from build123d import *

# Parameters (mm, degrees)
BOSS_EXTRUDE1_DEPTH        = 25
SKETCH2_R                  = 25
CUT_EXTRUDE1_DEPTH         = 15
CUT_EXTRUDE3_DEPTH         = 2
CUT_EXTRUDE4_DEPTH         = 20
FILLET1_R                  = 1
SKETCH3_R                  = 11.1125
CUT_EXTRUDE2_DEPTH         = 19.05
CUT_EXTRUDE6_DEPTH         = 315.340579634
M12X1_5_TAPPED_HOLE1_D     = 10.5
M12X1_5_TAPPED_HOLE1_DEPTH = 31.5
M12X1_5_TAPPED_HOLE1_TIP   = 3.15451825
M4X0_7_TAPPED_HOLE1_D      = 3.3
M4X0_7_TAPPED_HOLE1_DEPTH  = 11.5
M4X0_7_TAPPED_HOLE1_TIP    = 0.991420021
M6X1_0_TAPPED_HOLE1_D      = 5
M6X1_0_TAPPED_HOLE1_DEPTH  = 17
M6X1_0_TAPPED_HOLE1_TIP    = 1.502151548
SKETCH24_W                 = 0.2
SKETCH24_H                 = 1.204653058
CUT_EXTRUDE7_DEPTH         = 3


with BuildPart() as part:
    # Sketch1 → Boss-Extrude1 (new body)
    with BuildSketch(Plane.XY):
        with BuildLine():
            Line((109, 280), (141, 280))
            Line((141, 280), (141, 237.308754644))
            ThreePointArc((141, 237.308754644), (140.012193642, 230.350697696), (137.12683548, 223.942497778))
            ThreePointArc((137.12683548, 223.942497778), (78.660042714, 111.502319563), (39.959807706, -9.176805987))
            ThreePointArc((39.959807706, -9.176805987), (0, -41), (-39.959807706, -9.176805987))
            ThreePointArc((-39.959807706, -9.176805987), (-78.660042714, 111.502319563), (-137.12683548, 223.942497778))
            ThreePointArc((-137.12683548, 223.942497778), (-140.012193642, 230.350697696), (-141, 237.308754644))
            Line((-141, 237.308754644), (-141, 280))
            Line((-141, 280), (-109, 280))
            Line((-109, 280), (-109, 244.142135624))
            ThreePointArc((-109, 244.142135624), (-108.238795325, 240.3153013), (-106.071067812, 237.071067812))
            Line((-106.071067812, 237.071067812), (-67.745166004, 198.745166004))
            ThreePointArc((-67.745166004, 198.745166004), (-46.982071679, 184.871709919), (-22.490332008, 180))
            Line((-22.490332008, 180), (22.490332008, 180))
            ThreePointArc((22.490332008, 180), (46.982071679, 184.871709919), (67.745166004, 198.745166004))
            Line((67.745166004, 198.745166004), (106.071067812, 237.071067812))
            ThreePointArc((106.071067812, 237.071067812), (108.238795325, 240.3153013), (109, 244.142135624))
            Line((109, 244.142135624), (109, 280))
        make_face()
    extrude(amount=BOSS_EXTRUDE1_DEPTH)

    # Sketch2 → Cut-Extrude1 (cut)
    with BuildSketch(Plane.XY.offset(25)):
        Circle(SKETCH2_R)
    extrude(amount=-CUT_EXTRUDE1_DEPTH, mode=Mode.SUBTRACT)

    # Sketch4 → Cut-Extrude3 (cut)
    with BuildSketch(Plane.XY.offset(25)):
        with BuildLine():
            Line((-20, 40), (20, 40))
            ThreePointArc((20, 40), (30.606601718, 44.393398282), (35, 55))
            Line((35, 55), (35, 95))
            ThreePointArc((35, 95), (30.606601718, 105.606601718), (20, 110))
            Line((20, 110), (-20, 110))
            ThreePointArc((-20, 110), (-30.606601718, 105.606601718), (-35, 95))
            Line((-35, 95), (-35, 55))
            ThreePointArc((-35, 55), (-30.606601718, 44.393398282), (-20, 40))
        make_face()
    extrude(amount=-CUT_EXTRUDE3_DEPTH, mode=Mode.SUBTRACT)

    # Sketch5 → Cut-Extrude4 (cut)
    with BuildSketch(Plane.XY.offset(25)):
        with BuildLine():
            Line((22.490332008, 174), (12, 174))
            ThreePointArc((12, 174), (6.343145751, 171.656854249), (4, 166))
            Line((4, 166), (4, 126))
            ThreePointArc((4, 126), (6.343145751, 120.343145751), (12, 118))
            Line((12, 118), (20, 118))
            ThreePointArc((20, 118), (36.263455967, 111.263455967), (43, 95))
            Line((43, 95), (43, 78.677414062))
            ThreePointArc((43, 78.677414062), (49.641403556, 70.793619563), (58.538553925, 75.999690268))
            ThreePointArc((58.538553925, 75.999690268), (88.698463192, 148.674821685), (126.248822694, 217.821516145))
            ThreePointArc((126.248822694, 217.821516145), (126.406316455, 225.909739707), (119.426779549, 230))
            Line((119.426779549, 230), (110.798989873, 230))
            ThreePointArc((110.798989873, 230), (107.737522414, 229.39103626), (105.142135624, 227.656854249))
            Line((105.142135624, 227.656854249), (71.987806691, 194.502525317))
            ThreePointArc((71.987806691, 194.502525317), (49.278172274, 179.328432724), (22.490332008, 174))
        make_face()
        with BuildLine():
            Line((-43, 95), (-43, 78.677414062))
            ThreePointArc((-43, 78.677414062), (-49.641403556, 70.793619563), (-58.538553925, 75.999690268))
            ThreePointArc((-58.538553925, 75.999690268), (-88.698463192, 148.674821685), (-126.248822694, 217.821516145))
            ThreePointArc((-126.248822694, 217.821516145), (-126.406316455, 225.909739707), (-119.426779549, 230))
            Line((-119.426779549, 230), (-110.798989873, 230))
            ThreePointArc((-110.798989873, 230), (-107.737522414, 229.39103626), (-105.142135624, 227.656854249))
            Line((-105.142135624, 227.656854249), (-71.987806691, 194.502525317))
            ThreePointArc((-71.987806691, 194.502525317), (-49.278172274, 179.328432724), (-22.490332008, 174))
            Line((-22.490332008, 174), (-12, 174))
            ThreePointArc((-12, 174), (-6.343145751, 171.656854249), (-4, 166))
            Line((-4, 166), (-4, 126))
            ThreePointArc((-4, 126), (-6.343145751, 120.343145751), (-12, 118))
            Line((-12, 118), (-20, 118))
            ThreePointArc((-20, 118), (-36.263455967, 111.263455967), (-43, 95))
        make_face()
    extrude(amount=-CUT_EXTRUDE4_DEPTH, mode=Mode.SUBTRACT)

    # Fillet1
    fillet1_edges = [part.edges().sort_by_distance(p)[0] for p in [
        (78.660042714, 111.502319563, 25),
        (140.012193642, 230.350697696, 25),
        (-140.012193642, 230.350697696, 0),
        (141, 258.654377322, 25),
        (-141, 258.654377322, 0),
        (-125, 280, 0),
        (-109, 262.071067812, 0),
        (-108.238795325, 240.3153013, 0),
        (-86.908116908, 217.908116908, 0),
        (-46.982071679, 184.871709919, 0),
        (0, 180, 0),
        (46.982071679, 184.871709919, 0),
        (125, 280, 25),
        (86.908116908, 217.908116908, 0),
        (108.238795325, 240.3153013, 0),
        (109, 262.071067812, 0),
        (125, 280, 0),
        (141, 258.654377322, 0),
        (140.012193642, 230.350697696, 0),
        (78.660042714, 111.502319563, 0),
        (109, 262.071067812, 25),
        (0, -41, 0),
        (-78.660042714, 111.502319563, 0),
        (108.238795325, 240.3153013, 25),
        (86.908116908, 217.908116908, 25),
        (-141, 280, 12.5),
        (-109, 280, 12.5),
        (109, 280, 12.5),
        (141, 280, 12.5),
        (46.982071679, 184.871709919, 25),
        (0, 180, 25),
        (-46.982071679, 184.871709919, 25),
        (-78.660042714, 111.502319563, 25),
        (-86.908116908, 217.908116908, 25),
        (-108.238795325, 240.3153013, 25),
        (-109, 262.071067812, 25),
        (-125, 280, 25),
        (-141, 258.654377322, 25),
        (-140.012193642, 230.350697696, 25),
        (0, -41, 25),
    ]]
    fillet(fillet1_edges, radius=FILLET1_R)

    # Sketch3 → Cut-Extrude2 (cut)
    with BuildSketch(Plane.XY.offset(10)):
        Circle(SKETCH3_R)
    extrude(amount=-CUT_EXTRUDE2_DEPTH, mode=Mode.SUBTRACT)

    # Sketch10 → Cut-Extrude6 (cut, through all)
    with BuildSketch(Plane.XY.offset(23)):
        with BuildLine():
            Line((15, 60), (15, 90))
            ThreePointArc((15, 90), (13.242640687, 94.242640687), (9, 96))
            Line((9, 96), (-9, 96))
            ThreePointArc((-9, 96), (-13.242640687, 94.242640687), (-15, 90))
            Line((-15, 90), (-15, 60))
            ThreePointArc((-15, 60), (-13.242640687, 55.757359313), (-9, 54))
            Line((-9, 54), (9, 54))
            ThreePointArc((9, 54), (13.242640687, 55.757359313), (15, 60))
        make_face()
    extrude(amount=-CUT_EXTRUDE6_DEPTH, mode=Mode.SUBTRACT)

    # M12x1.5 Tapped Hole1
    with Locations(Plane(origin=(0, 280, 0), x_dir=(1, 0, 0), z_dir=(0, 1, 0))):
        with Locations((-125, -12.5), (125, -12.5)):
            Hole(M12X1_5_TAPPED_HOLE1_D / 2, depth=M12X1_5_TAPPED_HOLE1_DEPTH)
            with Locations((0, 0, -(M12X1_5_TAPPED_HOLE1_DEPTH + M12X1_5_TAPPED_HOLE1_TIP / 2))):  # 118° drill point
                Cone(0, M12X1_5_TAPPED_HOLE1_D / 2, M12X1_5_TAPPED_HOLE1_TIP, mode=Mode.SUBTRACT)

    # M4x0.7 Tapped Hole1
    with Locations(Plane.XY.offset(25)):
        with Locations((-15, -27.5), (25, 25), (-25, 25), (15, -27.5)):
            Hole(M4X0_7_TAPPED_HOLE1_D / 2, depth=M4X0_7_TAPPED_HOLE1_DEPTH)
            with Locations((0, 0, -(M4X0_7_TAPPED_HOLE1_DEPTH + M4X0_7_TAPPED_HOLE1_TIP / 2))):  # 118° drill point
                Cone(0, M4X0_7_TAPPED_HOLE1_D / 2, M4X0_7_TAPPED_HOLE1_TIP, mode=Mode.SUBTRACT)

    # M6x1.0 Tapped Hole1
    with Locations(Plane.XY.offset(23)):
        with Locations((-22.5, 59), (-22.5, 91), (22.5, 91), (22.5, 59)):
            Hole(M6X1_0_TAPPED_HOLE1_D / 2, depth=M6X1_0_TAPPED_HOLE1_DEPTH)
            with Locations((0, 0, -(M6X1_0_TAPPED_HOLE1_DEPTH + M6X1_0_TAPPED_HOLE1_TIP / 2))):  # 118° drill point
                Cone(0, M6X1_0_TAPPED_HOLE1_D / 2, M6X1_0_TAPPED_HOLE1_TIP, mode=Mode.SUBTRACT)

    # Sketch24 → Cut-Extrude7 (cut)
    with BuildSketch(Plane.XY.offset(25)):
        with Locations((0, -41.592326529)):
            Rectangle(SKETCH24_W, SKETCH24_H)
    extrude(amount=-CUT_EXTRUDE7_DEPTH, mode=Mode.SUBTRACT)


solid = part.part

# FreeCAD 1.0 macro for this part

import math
import FreeCAD as App
import Part
import Sketcher

V = App.Vector


def edges_at(feature, points):
    """Names of the edges that pass closest to the given points."""
    edges = feature.Shape.Edges
    near = lambda p: min(range(len(edges)), key=lambda i: edges[i].distToShape(Part.Vertex(*p))[0])
    return sorted({f"Edge{near(p) + 1}" for p in points})


def add_polygon(sketch, points):
    """Adds a closed chain of lines whose ends are joined by coincident constraints."""
    first, n = sketch.GeometryCount, len(points)
    for a, b in zip(points, points[1:] + points[:1]):
        sketch.addGeometry(Part.LineSegment(App.Vector(*a, 0), App.Vector(*b, 0)), False)
    for i in range(n):
        sketch.addConstraint(Sketcher.Constraint("Coincident", first + i, 2, first + (i + 1) % n, 1))

doc = App.newDocument("Part")
params = doc.addObject("Spreadsheet::Sheet", "Params")
for row, (alias, value) in enumerate([
    ("sketch1_radius", "10 mm"),
    ("sketch1_radius2", "64 mm"),
    ("sketch1_radius3", "25 mm"),
    ("sketch1_radius4", "750 mm"),
    ("sketch1_radius5", "41 mm"),
    ("pad1_length", "25 mm"),
    ("sketch2_diameter", "50 mm"),
    ("pocket1_length", "15 mm"),
    ("sketch3_radius", "15 mm"),
    ("sketch3_width", "40 mm"),
    ("pocket2_length", "2 mm"),
    ("sketch4_radius", "8 mm"),
    ("sketch4_radius2", "23 mm"),
    ("sketch4_radius3", "756 mm"),
    ("sketch4_radius4", "70 mm"),
    ("sketch4_width", "8 mm"),
    ("pocket3_length", "20 mm"),
    ("fillet_radius", "1 mm"),
    ("pocket4_length", "19.05 mm"),
    ("sketch6_radius", "6 mm"),
    ("sketch6_width", "18 mm"),
    ("sketch6_height", "30 mm"),
    ("sketch7_diameter", "10.5 mm"),
    ("hole_diameter", "10.5 mm"),
    ("hole_depth", "31.5 mm"),
    ("sketch8_diameter", "3.3 mm"),
    ("hole2_diameter", "3.3 mm"),
    ("hole2_depth", "11.5 mm"),
    ("sketch9_diameter", "5 mm"),
    ("hole3_diameter", "5 mm"),
    ("hole3_depth", "17 mm"),
    ("sketch10_width", "0.2 mm"),
    ("pocket6_length", "3 mm"),
], start=1):
    params.set(f"A{row}", alias)
    params.set(f"B{row}", "=" + value)
    params.setAlias(f"B{row}", alias)

body = doc.addObject("PartDesign::Body", "Body")

# Sketch on XY plane
sketch1 = doc.addObject("Sketcher::SketchObject", "Sketch")
body.addObject(sketch1)
sketch1.AttachmentSupport = (doc.XY_Plane, [""])
sketch1.MapMode = "FlatFace"
sketch1.addGeometry([
    Part.LineSegment(V(141, 280, 0), V(109, 280, 0)),  # 0
    Part.LineSegment(V(109, 280, 0), V(109, 244.142136, 0)),  # 1
    Part.ArcOfCircle(Part.Circle(V(99, 244.142136, 0), V(0, 0, 1), 10), math.radians(-45), math.radians(0)),  # 2
    Part.LineSegment(V(106.071068, 237.071068, 0), V(67.745166, 198.745166, 0)),  # 3
    Part.ArcOfCircle(Part.Circle(V(22.490332, 244, 0), V(0, 0, 1), 64), math.radians(-90), math.radians(-45)),  # 4
    Part.LineSegment(V(22.490332, 180, 0), V(-22.490332, 180, 0)),  # 5
    Part.ArcOfCircle(Part.Circle(V(-22.490332, 244, 0), V(0, 0, 1), 64), math.radians(-135), math.radians(-90)),  # 6
    Part.LineSegment(V(-67.745166, 198.745166, 0), V(-106.071068, 237.071068, 0)),  # 7
    Part.ArcOfCircle(Part.Circle(V(-99, 244.142136, 0), V(0, 0, 1), 10), math.radians(180), math.radians(225)),  # 8
    Part.LineSegment(V(-109, 244.142136, 0), V(-109, 280, 0)),  # 9
    Part.LineSegment(V(-109, 280, 0), V(-141, 280, 0)),  # 10
    Part.LineSegment(V(-141, 280, 0), V(-141, 237.308755, 0)),  # 11
    Part.ArcOfCircle(Part.Circle(V(-116, 237.308755, 0), V(0, 0, 1), 25), math.radians(-180), math.radians(-147.679803)),  # 12
    Part.ArcOfCircle(Part.Circle(V(-770.9319, -177.045208, 0), V(0, 0, 1), 750), math.radians(12.933766), math.radians(32.320197)),  # 13
    Part.ArcOfCircle(Part.Circle(V(0, 0, 0), V(0, 0, 1), 41), math.radians(-167.066234), math.radians(-12.933766)),  # 14
    Part.ArcOfCircle(Part.Circle(V(770.9319, -177.045208, 0), V(0, 0, 1), 750), math.radians(147.679803), math.radians(167.066234)),  # 15
    Part.ArcOfCircle(Part.Circle(V(116, 237.308755, 0), V(0, 0, 1), 25), math.radians(-32.320197), math.radians(0)),  # 16
    Part.LineSegment(V(141, 237.308755, 0), V(141, 280, 0)),  # 17
], False)
sketch1.addConstraint([
    Sketcher.Constraint("Coincident", 0, 2, 1, 1),
    Sketcher.Constraint("Tangent", 1, 2, 2, 2),
    Sketcher.Constraint("Tangent", 2, 1, 3, 1),
    Sketcher.Constraint("Tangent", 3, 2, 4, 2),
    Sketcher.Constraint("Tangent", 4, 1, 5, 1),
    Sketcher.Constraint("Tangent", 5, 2, 6, 2),
    Sketcher.Constraint("Tangent", 6, 1, 7, 1),
    Sketcher.Constraint("Tangent", 7, 2, 8, 2),
    Sketcher.Constraint("Tangent", 8, 1, 9, 1),
    Sketcher.Constraint("Coincident", 9, 2, 10, 1),
    Sketcher.Constraint("Coincident", 10, 2, 11, 1),
    Sketcher.Constraint("Tangent", 11, 2, 12, 1),
    Sketcher.Constraint("Tangent", 12, 2, 13, 2),
    Sketcher.Constraint("Tangent", 13, 1, 14, 1),
    Sketcher.Constraint("Tangent", 14, 2, 15, 2),
    Sketcher.Constraint("Tangent", 15, 1, 16, 1),
    Sketcher.Constraint("Tangent", 16, 2, 17, 1),
    Sketcher.Constraint("Coincident", 17, 2, 0, 1),
    Sketcher.Constraint("Horizontal", 0),
    Sketcher.Constraint("Vertical", 1),
    Sketcher.Constraint("Horizontal", 5),
    Sketcher.Constraint("Vertical", 9),
    Sketcher.Constraint("Horizontal", 10),
    Sketcher.Constraint("Vertical", 11),
    Sketcher.Constraint("Vertical", 17),
    Sketcher.Constraint("Coincident", 14, 3, -1, 1),
    Sketcher.Constraint("Equal", 4, 6),
    Sketcher.Constraint("Equal", 2, 8),
    Sketcher.Constraint("Equal", 13, 15),
    Sketcher.Constraint("Equal", 12, 16),
    Sketcher.Constraint("Symmetric", 2, 3, 8, 3, -2),
    Sketcher.Constraint("Symmetric", 12, 3, 16, 3, -2),
    Sketcher.Constraint("Perpendicular", 3, 7),
    Sketcher.Constraint("Horizontal", 3, 2, 6, 1),
    Sketcher.Constraint("Horizontal", 0, 2, 9, 2),
    Sketcher.Constraint("Radius", 2, 10.0),
    Sketcher.Constraint("Radius", 4, 64.0),
    Sketcher.Constraint("Radius", 12, 25.0),
    Sketcher.Constraint("Radius", 13, 750.0),
    Sketcher.Constraint("Radius", 14, 41.0),
    Sketcher.Constraint("DistanceX", 0, 2, 0, 1, 32.0),
    Sketcher.Constraint("DistanceX", -1, 1, 2, 3, 99.0),
    Sketcher.Constraint("DistanceY", -1, 1, 4, 3, 244.0),
    Sketcher.Constraint("DistanceY", -1, 1, 0, 2, 280.0),
    Sketcher.Constraint("DistanceX", 13, 3, -1, 1, 770.9319),
    Sketcher.Constraint("DistanceX", 3, 2, 2, 1, 38.325902),
])
sketch1.setExpression("Constraints[35]", "Params.sketch1_radius")
sketch1.setExpression("Constraints[36]", "Params.sketch1_radius2")
sketch1.setExpression("Constraints[37]", "Params.sketch1_radius3")
sketch1.setExpression("Constraints[38]", "Params.sketch1_radius4")
sketch1.setExpression("Constraints[39]", "Params.sketch1_radius5")
pad1 = doc.addObject("PartDesign::Pad", "Pad")
body.addObject(pad1)
pad1.Profile = sketch1
pad1.setExpression("Length", "Params.pad1_length")

# Sketch on XY plane
sketch2 = doc.addObject("Sketcher::SketchObject", "Sketch001")
body.addObject(sketch2)
sketch2.AttachmentSupport = (doc.XY_Plane, [""])
sketch2.MapMode = "FlatFace"
sketch2.AttachmentOffset = App.Placement(V(0, 0, 25), App.Rotation())
sketch2.addGeometry(Part.Circle(V(0, 0, 0), V(0, 0, 1), 25), False)
sketch2.addConstraint([
    Sketcher.Constraint("Coincident", 0, 3, -1, 1),
    Sketcher.Constraint("Diameter", 0, 50.0),
])
sketch2.setExpression("Constraints[1]", "Params.sketch2_diameter")
pocket1 = doc.addObject("PartDesign::Pocket", "Pocket")
body.addObject(pocket1)
pocket1.Profile = sketch2
pocket1.setExpression("Length", "Params.pocket1_length")

# Sketch on XY plane
sketch3 = doc.addObject("Sketcher::SketchObject", "Sketch002")
body.addObject(sketch3)
sketch3.AttachmentSupport = (doc.XY_Plane, [""])
sketch3.MapMode = "FlatFace"
sketch3.AttachmentOffset = App.Placement(V(0, 0, 25), App.Rotation())
sketch3.addGeometry([
    Part.LineSegment(V(-20, 40, 0), V(20, 40, 0)),  # 0
    Part.ArcOfCircle(Part.Circle(V(20, 55, 0), V(0, 0, 1), 15), math.radians(-90), math.radians(0)),  # 1
    Part.LineSegment(V(35, 55, 0), V(35, 95, 0)),  # 2
    Part.ArcOfCircle(Part.Circle(V(20, 95, 0), V(0, 0, 1), 15), math.radians(0), math.radians(90)),  # 3
    Part.LineSegment(V(20, 110, 0), V(-20, 110, 0)),  # 4
    Part.ArcOfCircle(Part.Circle(V(-20, 95, 0), V(0, 0, 1), 15), math.radians(90), math.radians(180)),  # 5
    Part.LineSegment(V(-35, 95, 0), V(-35, 55, 0)),  # 6
    Part.ArcOfCircle(Part.Circle(V(-20, 55, 0), V(0, 0, 1), 15), math.radians(180), math.radians(270)),  # 7
], False)
sketch3.addConstraint([
    Sketcher.Constraint("Tangent", 0, 2, 1, 1),
    Sketcher.Constraint("Tangent", 1, 2, 2, 1),
    Sketcher.Constraint("Tangent", 2, 2, 3, 1),
    Sketcher.Constraint("Tangent", 3, 2, 4, 1),
    Sketcher.Constraint("Tangent", 4, 2, 5, 1),
    Sketcher.Constraint("Tangent", 5, 2, 6, 1),
    Sketcher.Constraint("Tangent", 6, 2, 7, 1),
    Sketcher.Constraint("Tangent", 7, 2, 0, 1),
    Sketcher.Constraint("Horizontal", 0),
    Sketcher.Constraint("Vertical", 2),
    Sketcher.Constraint("Horizontal", 4),
    Sketcher.Constraint("Vertical", 6),
    Sketcher.Constraint("Equal", 1, 3),
    Sketcher.Constraint("Equal", 3, 5),
    Sketcher.Constraint("Equal", 5, 7),
    Sketcher.Constraint("Equal", 4, 2),
    Sketcher.Constraint("Radius", 1, 15.0),
    Sketcher.Constraint("DistanceX", 0, 1, 0, 2, 40.0),
    Sketcher.Constraint("DistanceX", -1, 1, 1, 3, 20.0),
    Sketcher.Constraint("DistanceY", -1, 1, 1, 3, 55.0),
])
sketch3.setExpression("Constraints[16]", "Params.sketch3_radius")
sketch3.setExpression("Constraints[17]", "Params.sketch3_width")
pocket2 = doc.addObject("PartDesign::Pocket", "Pocket001")
body.addObject(pocket2)
pocket2.Profile = sketch3
pocket2.setExpression("Length", "Params.pocket2_length")

# Sketch on XY plane
sketch4 = doc.addObject("Sketcher::SketchObject", "Sketch003")
body.addObject(sketch4)
sketch4.AttachmentSupport = (doc.XY_Plane, [""])
sketch4.MapMode = "FlatFace"
sketch4.AttachmentOffset = App.Placement(V(0, 0, 25), App.Rotation())
sketch4.addGeometry([
    Part.LineSegment(V(22.490332, 174, 0), V(12, 174, 0)),  # 0
    Part.ArcOfCircle(Part.Circle(V(12, 166, 0), V(0, 0, 1), 8), math.radians(90), math.radians(180)),  # 1
    Part.LineSegment(V(4, 166, 0), V(4, 126, 0)),  # 2
    Part.ArcOfCircle(Part.Circle(V(12, 126, 0), V(0, 0, 1), 8), math.radians(-180), math.radians(-90)),  # 3
    Part.LineSegment(V(12, 118, 0), V(20, 118, 0)),  # 4
    Part.ArcOfCircle(Part.Circle(V(20, 95, 0), V(0, 0, 1), 23), math.radians(0), math.radians(90)),  # 5
    Part.LineSegment(V(43, 95, 0), V(43, 78.677414, 0)),  # 6
    Part.ArcOfCircle(Part.Circle(V(51, 78.677414, 0), V(0, 0, 1), 8), math.radians(180), math.radians(340.444763)),  # 7
    Part.ArcOfCircle(Part.Circle(V(770.9319, -177.045208, 0), V(0, 0, 1), 756), math.radians(148.512638), math.radians(160.444763)),  # 8
    Part.ArcOfCircle(Part.Circle(V(119.42678, 222, 0), V(0, 0, 1), 8), math.radians(-31.487362), math.radians(90)),  # 9
    Part.LineSegment(V(119.42678, 230, 0), V(110.79899, 230, 0)),  # 10
    Part.ArcOfCircle(Part.Circle(V(110.79899, 222, 0), V(0, 0, 1), 8), math.radians(90), math.radians(135)),  # 11
    Part.LineSegment(V(105.142136, 227.656854, 0), V(71.987807, 194.502525, 0)),  # 12
    Part.ArcOfCircle(Part.Circle(V(22.490332, 244, 0), V(0, 0, 1), 70), math.radians(-90), math.radians(-45)),  # 13
    Part.LineSegment(V(-43, 78.677414, 0), V(-43, 95, 0)),  # 14
    Part.ArcOfCircle(Part.Circle(V(-20, 95, 0), V(0, 0, 1), 23), math.radians(90), math.radians(180)),  # 15
    Part.LineSegment(V(-20, 118, 0), V(-12, 118, 0)),  # 16
    Part.ArcOfCircle(Part.Circle(V(-12, 126, 0), V(0, 0, 1), 8), math.radians(-90), math.radians(0)),  # 17
    Part.LineSegment(V(-4, 126, 0), V(-4, 166, 0)),  # 18
    Part.ArcOfCircle(Part.Circle(V(-12, 166, 0), V(0, 0, 1), 8), math.radians(0), math.radians(90)),  # 19
    Part.LineSegment(V(-12, 174, 0), V(-22.490332, 174, 0)),  # 20
    Part.ArcOfCircle(Part.Circle(V(-22.490332, 244, 0), V(0, 0, 1), 70), math.radians(-135), math.radians(-90)),  # 21
    Part.LineSegment(V(-71.987807, 194.502525, 0), V(-105.142136, 227.656854, 0)),  # 22
    Part.ArcOfCircle(Part.Circle(V(-110.79899, 222, 0), V(0, 0, 1), 8), math.radians(45), math.radians(90)),  # 23
    Part.LineSegment(V(-110.79899, 230, 0), V(-119.42678, 230, 0)),  # 24
    Part.ArcOfCircle(Part.Circle(V(-119.42678, 222, 0), V(0, 0, 1), 8), math.radians(90), math.radians(211.487362)),  # 25
    Part.ArcOfCircle(Part.Circle(V(-770.9319, -177.045208, 0), V(0, 0, 1), 756), math.radians(19.555237), math.radians(31.487362)),  # 26
    Part.ArcOfCircle(Part.Circle(V(-51, 78.677414, 0), V(0, 0, 1), 8), math.radians(-160.444763), math.radians(0)),  # 27
], False)
sketch4.addConstraint([
    Sketcher.Constraint("Tangent", 0, 2, 1, 1),
    Sketcher.Constraint("Tangent", 1, 2, 2, 1),
    Sketcher.Constraint("Tangent", 2, 2, 3, 1),
    Sketcher.Constraint("Tangent", 3, 2, 4, 1),
    Sketcher.Constraint("Tangent", 4, 2, 5, 2),
    Sketcher.Constraint("Tangent", 5, 1, 6, 1),
    Sketcher.Constraint("Tangent", 6, 2, 7, 1),
    Sketcher.Constraint("Tangent", 7, 2, 8, 2),
    Sketcher.Constraint("Tangent", 8, 1, 9, 1),
    Sketcher.Constraint("Tangent", 9, 2, 10, 1),
    Sketcher.Constraint("Tangent", 10, 2, 11, 1),
    Sketcher.Constraint("Tangent", 11, 2, 12, 1),
    Sketcher.Constraint("Tangent", 12, 2, 13, 2),
    Sketcher.Constraint("Tangent", 13, 1, 0, 1),
    Sketcher.Constraint("Tangent", 14, 2, 15, 2),
    Sketcher.Constraint("Tangent", 15, 1, 16, 1),
    Sketcher.Constraint("Tangent", 16, 2, 17, 1),
    Sketcher.Constraint("Tangent", 17, 2, 18, 1),
    Sketcher.Constraint("Tangent", 18, 2, 19, 1),
    Sketcher.Constraint("Tangent", 19, 2, 20, 1),
    Sketcher.Constraint("Tangent", 20, 2, 21, 2),
    Sketcher.Constraint("Tangent", 21, 1, 22, 1),
    Sketcher.Constraint("Tangent", 22, 2, 23, 1),
    Sketcher.Constraint("Tangent", 23, 2, 24, 1),
    Sketcher.Constraint("Tangent", 24, 2, 25, 1),
    Sketcher.Constraint("Tangent", 25, 2, 26, 2),
    Sketcher.Constraint("Tangent", 26, 1, 27, 1),
    Sketcher.Constraint("Tangent", 27, 2, 14, 1),
    Sketcher.Constraint("Horizontal", 0),
    Sketcher.Constraint("Vertical", 2),
    Sketcher.Constraint("Horizontal", 4),
    Sketcher.Constraint("Vertical", 6),
    Sketcher.Constraint("Horizontal", 10),
    Sketcher.Constraint("Vertical", 14),
    Sketcher.Constraint("Horizontal", 16),
    Sketcher.Constraint("Vertical", 18),
    Sketcher.Constraint("Horizontal", 20),
    Sketcher.Constraint("Horizontal", 24),
    Sketcher.Constraint("Equal", 1, 3),
    Sketcher.Constraint("Equal", 3, 7),
    Sketcher.Constraint("Equal", 7, 9),
    Sketcher.Constraint("Equal", 9, 11),
    Sketcher.Constraint("Equal", 5, 15),
    Sketcher.Constraint("Equal", 11, 17),
    Sketcher.Constraint("Equal", 17, 19),
    Sketcher.Constraint("Equal", 13, 21),
    Sketcher.Constraint("Equal", 19, 23),
    Sketcher.Constraint("Equal", 23, 25),
    Sketcher.Constraint("Equal", 8, 26),
    Sketcher.Constraint("Equal", 25, 27),
    Sketcher.Constraint("Symmetric", 5, 3, 15, 3, -2),
    Sketcher.Constraint("Symmetric", 1, 3, 19, 3, -2),
    Sketcher.Constraint("Symmetric", 11, 3, 23, 3, -2),
    Sketcher.Constraint("Symmetric", 8, 3, 26, 3, -2),
    Sketcher.Constraint("Perpendicular", 12, 22),
    Sketcher.Constraint("Horizontal", 12, 2, 21, 1),
    Sketcher.Constraint("Radius", 1, 8.0),
    Sketcher.Constraint("Radius", 5, 23.0),
    Sketcher.Constraint("Radius", 8, 756.0),
    Sketcher.Constraint("Radius", 13, 70.0),
    Sketcher.Constraint("DistanceX", 4, 1, 4, 2, 8.0),
    Sketcher.Constraint("DistanceY", 2, 2, 2, 1, 40.0),
    Sketcher.Constraint("DistanceX", -1, 1, 1, 3, 12.0),
    Sketcher.Constraint("DistanceY", -1, 1, 1, 3, 166.0),
    Sketcher.Constraint("DistanceY", -1, 1, 9, 3, 222.0),
    Sketcher.Constraint("DistanceX", 10, 2, 10, 1, 8.62779),
    Sketcher.Constraint("DistanceX", -1, 1, 8, 3, 770.9319),
    Sketcher.Constraint("DistanceX", 0, 2, 0, 1, 10.490332),
])
sketch4.setExpression("Constraints[56]", "Params.sketch4_radius")
sketch4.setExpression("Constraints[57]", "Params.sketch4_radius2")
sketch4.setExpression("Constraints[58]", "Params.sketch4_radius3")
sketch4.setExpression("Constraints[59]", "Params.sketch4_radius4")
sketch4.setExpression("Constraints[60]", "Params.sketch4_width")
pocket3 = doc.addObject("PartDesign::Pocket", "Pocket002")
body.addObject(pocket3)
pocket3.Profile = sketch4
pocket3.setExpression("Length", "Params.pocket3_length")
doc.recompute()

fillet = doc.addObject("PartDesign::Fillet", "Fillet")
body.addObject(fillet)
fillet.Base = (pocket3, edges_at(pocket3, [
    (78.66, 111.502, 25),
    (140.012, 230.351, 25),
    (-140.012, 230.351, 0),
    (141, 258.654, 25),
    (-141, 258.654, 0),
    (-125, 280, 0),
    (-109, 262.071, 0),
    (-108.239, 240.315, 0),
    (-86.908, 217.908, 0),
    (-46.982, 184.872, 0),
    (0, 180, 0),
    (46.982, 184.872, 0),
    (125, 280, 25),
    (86.908, 217.908, 0),
    (108.239, 240.315, 0),
    (109, 262.071, 0),
    (125, 280, 0),
    (141, 258.654, 0),
    (140.012, 230.351, 0),
    (78.66, 111.502, 0),
    (109, 262.071, 25),
    (0, -41, 0),
    (-78.66, 111.502, 0),
    (108.239, 240.315, 25),
    (86.908, 217.908, 25),
    (-141, 280, 12.5),
    (-109, 280, 12.5),
    (109, 280, 12.5),
    (141, 280, 12.5),
    (46.982, 184.872, 25),
    (0, 180, 25),
    (-46.982, 184.872, 25),
    (-78.66, 111.502, 25),
    (-86.908, 217.908, 25),
    (-108.239, 240.315, 25),
    (-109, 262.071, 25),
    (-125, 280, 25),
    (-141, 258.654, 25),
    (-140.012, 230.351, 25),
    (0, -41, 25),
]))
fillet.setExpression("Radius", "Params.fillet_radius")

# Sketch on XY plane
sketch5 = doc.addObject("Sketcher::SketchObject", "Sketch004")
body.addObject(sketch5)
sketch5.AttachmentSupport = (doc.XY_Plane, [""])
sketch5.MapMode = "FlatFace"
sketch5.AttachmentOffset = App.Placement(V(0, 0, 10), App.Rotation())
sketch5.addGeometry(Part.Circle(V(0, 0, 0), V(0, 0, 1), 11.1125), False)
sketch5.addConstraint([
    Sketcher.Constraint("Coincident", 0, 3, -1, 1),
    Sketcher.Constraint("Diameter", 0, 22.225),
])
pocket4 = doc.addObject("PartDesign::Pocket", "Pocket003")
body.addObject(pocket4)
pocket4.Profile = sketch5
pocket4.setExpression("Length", "Params.pocket4_length")

# Sketch on XY plane
sketch6 = doc.addObject("Sketcher::SketchObject", "Sketch005")
body.addObject(sketch6)
sketch6.AttachmentSupport = (doc.XY_Plane, [""])
sketch6.MapMode = "FlatFace"
sketch6.AttachmentOffset = App.Placement(V(0, 0, 23), App.Rotation())
sketch6.addGeometry([
    Part.LineSegment(V(15, 60, 0), V(15, 90, 0)),  # 0
    Part.ArcOfCircle(Part.Circle(V(9, 90, 0), V(0, 0, 1), 6), math.radians(0), math.radians(90)),  # 1
    Part.LineSegment(V(9, 96, 0), V(-9, 96, 0)),  # 2
    Part.ArcOfCircle(Part.Circle(V(-9, 90, 0), V(0, 0, 1), 6), math.radians(90), math.radians(180)),  # 3
    Part.LineSegment(V(-15, 90, 0), V(-15, 60, 0)),  # 4
    Part.ArcOfCircle(Part.Circle(V(-9, 60, 0), V(0, 0, 1), 6), math.radians(180), math.radians(270)),  # 5
    Part.LineSegment(V(-9, 54, 0), V(9, 54, 0)),  # 6
    Part.ArcOfCircle(Part.Circle(V(9, 60, 0), V(0, 0, 1), 6), math.radians(-90), math.radians(0)),  # 7
], False)
sketch6.addConstraint([
    Sketcher.Constraint("Tangent", 0, 2, 1, 1),
    Sketcher.Constraint("Tangent", 1, 2, 2, 1),
    Sketcher.Constraint("Tangent", 2, 2, 3, 1),
    Sketcher.Constraint("Tangent", 3, 2, 4, 1),
    Sketcher.Constraint("Tangent", 4, 2, 5, 1),
    Sketcher.Constraint("Tangent", 5, 2, 6, 1),
    Sketcher.Constraint("Tangent", 6, 2, 7, 1),
    Sketcher.Constraint("Tangent", 7, 2, 0, 1),
    Sketcher.Constraint("Vertical", 0),
    Sketcher.Constraint("Horizontal", 2),
    Sketcher.Constraint("Vertical", 4),
    Sketcher.Constraint("Horizontal", 6),
    Sketcher.Constraint("Equal", 1, 3),
    Sketcher.Constraint("Equal", 3, 5),
    Sketcher.Constraint("Equal", 5, 7),
    Sketcher.Constraint("Radius", 1, 6.0),
    Sketcher.Constraint("DistanceX", 2, 2, 2, 1, 18.0),
    Sketcher.Constraint("DistanceY", 0, 1, 0, 2, 30.0),
    Sketcher.Constraint("DistanceX", -1, 1, 1, 3, 9.0),
    Sketcher.Constraint("DistanceY", -1, 1, 1, 3, 90.0),
])
sketch6.setExpression("Constraints[15]", "Params.sketch6_radius")
sketch6.setExpression("Constraints[16]", "Params.sketch6_width")
sketch6.setExpression("Constraints[17]", "Params.sketch6_height")
pocket5 = doc.addObject("PartDesign::Pocket", "Pocket004")
body.addObject(pocket5)
pocket5.Profile = sketch6
pocket5.Type = "ThroughAll"

# Sketch on XZ plane
sketch7 = doc.addObject("Sketcher::SketchObject", "Sketch006")
body.addObject(sketch7)
sketch7.AttachmentSupport = (doc.XZ_Plane, [""])
sketch7.MapMode = "FlatFace"
sketch7.AttachmentOffset = App.Placement(V(0, 0, -280), App.Rotation())
sketch7.addGeometry([
    Part.Circle(V(-125, 12.5, 0), V(0, 0, 1), 5.25),
    Part.Circle(V(125, 12.5, 0), V(0, 0, 1), 5.25),
], False)
sketch7.addConstraint([
    Sketcher.Constraint("Equal", 0, 1),
    Sketcher.Constraint("Symmetric", 0, 3, 1, 3, -2),
    Sketcher.Constraint("Diameter", 0, 10.5),
    Sketcher.Constraint("DistanceX", 0, 3, -1, 1, 125.0),
    Sketcher.Constraint("DistanceY", -1, 1, 0, 3, 12.5),
])
sketch7.setExpression("Constraints[2]", "Params.sketch7_diameter")
doc.recompute()
hole = doc.addObject("PartDesign::Hole", "Hole")
body.addObject(hole)
hole.Profile = sketch7
hole.ThreadType = "None"
hole.setExpression("Diameter", "Params.hole_diameter")
hole.DepthType = "Dimension"
hole.setExpression("Depth", "Params.hole_depth")
hole.DrillPoint = "Angled"
hole.DrillPointAngle = 118
hole.Reversed = True

# Sketch on XY plane
sketch8 = doc.addObject("Sketcher::SketchObject", "Sketch007")
body.addObject(sketch8)
sketch8.AttachmentSupport = (doc.XY_Plane, [""])
sketch8.MapMode = "FlatFace"
sketch8.AttachmentOffset = App.Placement(V(0, 0, 25), App.Rotation())
sketch8.addGeometry([
    Part.Circle(V(-15, -27.5, 0), V(0, 0, 1), 1.65),
    Part.Circle(V(25, 25, 0), V(0, 0, 1), 1.65),
    Part.Circle(V(-25, 25, 0), V(0, 0, 1), 1.65),
    Part.Circle(V(15, -27.5, 0), V(0, 0, 1), 1.65),
], False)
sketch8.addConstraint([
    Sketcher.Constraint("Equal", 0, 1),
    Sketcher.Constraint("Equal", 1, 2),
    Sketcher.Constraint("Equal", 2, 3),
    Sketcher.Constraint("Symmetric", 1, 3, 2, 3, -2),
    Sketcher.Constraint("Symmetric", 0, 3, 3, 3, -2),
    Sketcher.Constraint("Diameter", 0, 3.3),
    Sketcher.Constraint("DistanceX", 0, 3, -1, 1, 15.0),
    Sketcher.Constraint("DistanceX", -1, 1, 1, 3, 25.0),
    Sketcher.Constraint("DistanceY", -1, 1, 1, 3, 25.0),
    Sketcher.Constraint("DistanceY", 0, 3, -1, 1, 27.5),
])
sketch8.setExpression("Constraints[5]", "Params.sketch8_diameter")
doc.recompute()
hole2 = doc.addObject("PartDesign::Hole", "Hole001")
body.addObject(hole2)
hole2.Profile = sketch8
hole2.ThreadType = "None"
hole2.setExpression("Diameter", "Params.hole2_diameter")
hole2.DepthType = "Dimension"
hole2.setExpression("Depth", "Params.hole2_depth")
hole2.DrillPoint = "Angled"
hole2.DrillPointAngle = 118

# Sketch on XY plane
sketch9 = doc.addObject("Sketcher::SketchObject", "Sketch008")
body.addObject(sketch9)
sketch9.AttachmentSupport = (doc.XY_Plane, [""])
sketch9.MapMode = "FlatFace"
sketch9.AttachmentOffset = App.Placement(V(0, 0, 23), App.Rotation())
sketch9.addGeometry([
    Part.Circle(V(-22.5, 59, 0), V(0, 0, 1), 2.5),
    Part.Circle(V(-22.5, 91, 0), V(0, 0, 1), 2.5),
    Part.Circle(V(22.5, 91, 0), V(0, 0, 1), 2.5),
    Part.Circle(V(22.5, 59, 0), V(0, 0, 1), 2.5),
], False)
sketch9.addConstraint([
    Sketcher.Constraint("Equal", 0, 1),
    Sketcher.Constraint("Equal", 1, 2),
    Sketcher.Constraint("Equal", 2, 3),
    Sketcher.Constraint("Symmetric", 1, 3, 2, 3, -2),
    Sketcher.Constraint("Symmetric", 0, 3, 3, 3, -2),
    Sketcher.Constraint("Vertical", 0, 3, 1, 3),
    Sketcher.Constraint("Diameter", 0, 5.0),
    Sketcher.Constraint("DistanceY", -1, 1, 0, 3, 59.0),
    Sketcher.Constraint("DistanceY", -1, 1, 1, 3, 91.0),
    Sketcher.Constraint("DistanceX", 1, 3, 2, 3, 45.0),
])
sketch9.setExpression("Constraints[6]", "Params.sketch9_diameter")
doc.recompute()
hole3 = doc.addObject("PartDesign::Hole", "Hole002")
body.addObject(hole3)
hole3.Profile = sketch9
hole3.ThreadType = "None"
hole3.setExpression("Diameter", "Params.hole3_diameter")
hole3.DepthType = "Dimension"
hole3.setExpression("Depth", "Params.hole3_depth")
hole3.DrillPoint = "Angled"
hole3.DrillPointAngle = 118

# Sketch on XY plane
sketch10 = doc.addObject("Sketcher::SketchObject", "Sketch009")
body.addObject(sketch10)
sketch10.AttachmentSupport = (doc.XY_Plane, [""])
sketch10.MapMode = "FlatFace"
sketch10.AttachmentOffset = App.Placement(V(0, 0, 25), App.Rotation())
add_polygon(sketch10, [(-0.1, -40.99), (-0.1, -42.194653), (0.1, -42.194653), (0.1, -40.99)])  # lines 0-3
sketch10.addConstraint([
    Sketcher.Constraint("Vertical", 0),
    Sketcher.Constraint("Horizontal", 1),
    Sketcher.Constraint("Vertical", 2),
    Sketcher.Constraint("Horizontal", 3),
    Sketcher.Constraint("DistanceX", 1, 1, 1, 2, 0.2),
    Sketcher.Constraint("DistanceX", 0, 2, -1, 1, 0.1),
    Sketcher.Constraint("DistanceY", 2, 2, -1, 1, 40.99),
    Sketcher.Constraint("DistanceY", 0, 2, 0, 1, 1.204653),
])
sketch10.setExpression("Constraints[8]", "Params.sketch10_width")
pocket6 = doc.addObject("PartDesign::Pocket", "Pocket005")
body.addObject(pocket6)
pocket6.Profile = sketch10
pocket6.setExpression("Length", "Params.pocket6_length")

doc.recompute()
